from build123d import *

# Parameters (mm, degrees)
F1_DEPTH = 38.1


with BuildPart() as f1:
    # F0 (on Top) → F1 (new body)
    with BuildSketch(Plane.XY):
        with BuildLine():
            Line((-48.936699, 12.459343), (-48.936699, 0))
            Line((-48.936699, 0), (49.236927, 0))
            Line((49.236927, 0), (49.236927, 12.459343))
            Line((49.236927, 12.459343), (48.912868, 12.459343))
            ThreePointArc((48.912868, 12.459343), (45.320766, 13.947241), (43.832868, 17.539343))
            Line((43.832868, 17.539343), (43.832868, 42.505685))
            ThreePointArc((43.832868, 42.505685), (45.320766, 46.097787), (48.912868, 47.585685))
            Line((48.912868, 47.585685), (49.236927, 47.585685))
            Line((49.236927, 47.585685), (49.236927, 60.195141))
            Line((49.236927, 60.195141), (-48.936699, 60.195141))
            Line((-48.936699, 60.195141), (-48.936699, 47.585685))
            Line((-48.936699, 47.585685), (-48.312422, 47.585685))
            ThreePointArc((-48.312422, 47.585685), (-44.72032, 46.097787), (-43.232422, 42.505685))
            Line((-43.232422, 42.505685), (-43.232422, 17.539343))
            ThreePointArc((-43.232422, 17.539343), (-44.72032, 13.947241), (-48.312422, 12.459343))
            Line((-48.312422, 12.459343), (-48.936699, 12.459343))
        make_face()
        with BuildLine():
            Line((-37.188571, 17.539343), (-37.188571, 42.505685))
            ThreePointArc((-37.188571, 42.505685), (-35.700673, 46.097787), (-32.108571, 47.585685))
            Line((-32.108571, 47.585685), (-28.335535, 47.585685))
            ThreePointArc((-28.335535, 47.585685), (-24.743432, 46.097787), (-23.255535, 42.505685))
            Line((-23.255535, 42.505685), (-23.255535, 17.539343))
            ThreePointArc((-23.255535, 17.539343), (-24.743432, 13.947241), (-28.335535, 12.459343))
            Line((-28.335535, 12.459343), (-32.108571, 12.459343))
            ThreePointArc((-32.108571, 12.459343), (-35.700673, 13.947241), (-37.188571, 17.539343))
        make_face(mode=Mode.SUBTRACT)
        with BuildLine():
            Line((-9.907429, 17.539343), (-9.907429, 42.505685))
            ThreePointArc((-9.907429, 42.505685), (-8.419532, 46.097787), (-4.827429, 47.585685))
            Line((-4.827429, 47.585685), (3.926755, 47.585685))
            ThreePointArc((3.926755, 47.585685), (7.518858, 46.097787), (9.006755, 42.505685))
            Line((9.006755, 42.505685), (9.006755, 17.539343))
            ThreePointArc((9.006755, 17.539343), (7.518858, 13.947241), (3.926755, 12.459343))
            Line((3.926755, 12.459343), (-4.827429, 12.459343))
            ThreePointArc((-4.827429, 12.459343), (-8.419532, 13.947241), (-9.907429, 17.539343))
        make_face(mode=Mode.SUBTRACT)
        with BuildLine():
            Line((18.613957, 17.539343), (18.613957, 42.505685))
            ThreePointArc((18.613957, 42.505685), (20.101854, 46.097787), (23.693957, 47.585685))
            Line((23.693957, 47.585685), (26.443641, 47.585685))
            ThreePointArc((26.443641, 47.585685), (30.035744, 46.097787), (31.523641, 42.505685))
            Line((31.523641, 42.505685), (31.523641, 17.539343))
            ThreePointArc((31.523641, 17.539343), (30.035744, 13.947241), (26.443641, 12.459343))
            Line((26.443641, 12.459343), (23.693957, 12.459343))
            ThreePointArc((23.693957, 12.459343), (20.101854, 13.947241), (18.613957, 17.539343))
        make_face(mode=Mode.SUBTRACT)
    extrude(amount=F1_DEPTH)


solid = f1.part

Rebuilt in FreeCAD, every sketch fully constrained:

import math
import FreeCAD as App
import Part
import Sketcher

V = App.Vector
Q = App.Units.Quantity

doc = App.newDocument("Part")
body = doc.addObject("PartDesign::Body", "Body")

sketch1 = doc.addObject("Sketcher::SketchObject", "Sketch")
body.addObject(sketch1)
sketch1.AttachmentSupport = (doc.XY_Plane, [""])
sketch1.MapMode = "FlatFace"
sketch1.addGeometry([
    Part.LineSegment(V(-48.94, 12.46, 0), V(-48.94, 0, 0)),
    Part.LineSegment(V(-48.94, 0, 0), V(49.24, 0, 0)),
    Part.LineSegment(V(49.24, 0, 0), V(49.24, 12.46, 0)),
    Part.LineSegment(V(49.24, 12.46, 0), V(48.91, 12.46, 0)),
    Part.ArcOfCircle(Part.Circle(V(48.91, 17.54, 0), V(0, 0, 1), 5.08), math.radians(-180), math.radians(-90)),
    Part.LineSegment(V(43.83, 17.54, 0), V(43.83, 42.51, 0)),
    Part.ArcOfCircle(Part.Circle(V(48.91, 42.51, 0), V(0, 0, 1), 5.08), math.radians(90), math.radians(180)),
    Part.LineSegment(V(48.91, 47.59, 0), V(49.24, 47.59, 0)),
    Part.LineSegment(V(49.24, 47.59, 0), V(49.24, 60.2, 0)),
    Part.LineSegment(V(49.24, 60.2, 0), V(-48.94, 60.2, 0)),
    Part.LineSegment(V(-48.94, 60.2, 0), V(-48.94, 47.59, 0)),
    Part.LineSegment(V(-48.94, 47.59, 0), V(-48.31, 47.59, 0)),
    Part.ArcOfCircle(Part.Circle(V(-48.31, 42.51, 0), V(0, 0, 1), 5.08), math.radians(0), math.radians(90)),
    Part.LineSegment(V(-43.23, 42.51, 0), V(-43.23, 17.54, 0)),
    Part.ArcOfCircle(Part.Circle(V(-48.31, 17.54, 0), V(0, 0, 1), 5.08), math.radians(-90), math.radians(0)),
    Part.LineSegment(V(-48.31, 12.46, 0), V(-48.94, 12.46, 0)),
    Part.ArcOfCircle(Part.Circle(V(-32.11, 17.54, 0), V(0, 0, 1), 5.08), math.radians(-180), math.radians(-90)),
    Part.LineSegment(V(-37.19, 17.54, 0), V(-37.19, 42.51, 0)),
    Part.ArcOfCircle(Part.Circle(V(-32.11, 42.51, 0), V(0, 0, 1), 5.08), math.radians(90), math.radians(180)),
    Part.LineSegment(V(-32.11, 47.59, 0), V(-28.34, 47.59, 0)),
    Part.ArcOfCircle(Part.Circle(V(-28.34, 42.51, 0), V(0, 0, 1), 5.08), math.radians(0), math.radians(90)),
    Part.LineSegment(V(-23.26, 42.51, 0), V(-23.26, 17.54, 0)),
    Part.ArcOfCircle(Part.Circle(V(-28.34, 17.54, 0), V(0, 0, 1), 5.08), math.radians(-90), math.radians(0)),
    Part.LineSegment(V(-28.34, 12.46, 0), V(-32.11, 12.46, 0)),
    Part.ArcOfCircle(Part.Circle(V(-4.83, 17.54, 0), V(0, 0, 1), 5.08), math.radians(180), math.radians(270)),
    Part.LineSegment(V(-9.91, 17.54, 0), V(-9.91, 42.51, 0)),
    Part.ArcOfCircle(Part.Circle(V(-4.83, 42.51, 0), V(0, 0, 1), 5.08), math.radians(90), math.radians(180)),
    Part.LineSegment(V(-4.83, 47.59, 0), V(3.93, 47.59, 0)),
    Part.ArcOfCircle(Part.Circle(V(3.93, 42.51, 0), V(0, 0, 1), 5.08), math.radians(0), math.radians(90)),
    Part.LineSegment(V(9.01, 42.51, 0), V(9.01, 17.54, 0)),
    Part.ArcOfCircle(Part.Circle(V(3.93, 17.54, 0), V(0, 0, 1), 5.08), math.radians(-90), math.radians(0)),
    Part.LineSegment(V(3.93, 12.46, 0), V(-4.83, 12.46, 0)),
    Part.ArcOfCircle(Part.Circle(V(23.69, 17.54, 0), V(0, 0, 1), 5.08), math.radians(180), math.radians(270)),
    Part.LineSegment(V(18.61, 17.54, 0), V(18.61, 42.51, 0)),
    Part.ArcOfCircle(Part.Circle(V(23.69, 42.51, 0), V(0, 0, 1), 5.08), math.radians(90), math.radians(180)),
    Part.LineSegment(V(23.69, 47.59, 0), V(26.44, 47.59, 0)),
    Part.ArcOfCircle(Part.Circle(V(26.44, 42.51, 0), V(0, 0, 1), 5.08), math.radians(0), math.radians(90)),
    Part.LineSegment(V(31.52, 42.51, 0), V(31.52, 17.54, 0)),
    Part.ArcOfCircle(Part.Circle(V(26.44, 17.54, 0), V(0, 0, 1), 5.08), math.radians(-90), math.radians(0)),
    Part.LineSegment(V(26.44, 12.46, 0), V(23.69, 12.46, 0)),
], False)
sketch1.addConstraint([
    Sketcher.Constraint("Coincident", 0, 2, 1, 1),
    Sketcher.Constraint("Coincident", 1, 2, 2, 1),
    Sketcher.Constraint("Coincident", 2, 2, 3, 1),
    Sketcher.Constraint("Tangent", 3, 2, 4, 2),
    Sketcher.Constraint("Tangent", 4, 1, 5, 1),
    Sketcher.Constraint("Tangent", 5, 2, 6, 2),
    Sketcher.Constraint("Tangent", 6, 1, 7, 1),
    Sketcher.Constraint("Coincident", 7, 2, 8, 1),
    Sketcher.Constraint("Coincident", 8, 2, 9, 1),
    Sketcher.Constraint("Coincident", 9, 2, 10, 1),
    Sketcher.Constraint("Coincident", 10, 2, 11, 1),
    Sketcher.Constraint("Tangent", 11, 2, 12, 2),
    Sketcher.Constraint("Tangent", 12, 1, 13, 1),
    Sketcher.Constraint("Tangent", 13, 2, 14, 2),
    Sketcher.Constraint("Tangent", 14, 1, 15, 1),
    Sketcher.Constraint("Coincident", 15, 2, 0, 1),
    Sketcher.Constraint("Tangent", 16, 1, 17, 1),
    Sketcher.Constraint("Tangent", 17, 2, 18, 2),
    Sketcher.Constraint("Tangent", 18, 1, 19, 1),
    Sketcher.Constraint("Tangent", 19, 2, 20, 2),
    Sketcher.Constraint("Tangent", 20, 1, 21, 1),
    Sketcher.Constraint("Tangent", 21, 2, 22, 2),
    Sketcher.Constraint("Tangent", 22, 1, 23, 1),
    Sketcher.Constraint("Tangent", 23, 2, 16, 2),
    Sketcher.Constraint("Tangent", 24, 1, 25, 1),
    Sketcher.Constraint("Tangent", 25, 2, 26, 2),
    Sketcher.Constraint("Tangent", 26, 1, 27, 1),
    Sketcher.Constraint("Tangent", 27, 2, 28, 2),
    Sketcher.Constraint("Tangent", 28, 1, 29, 1),
    Sketcher.Constraint("Tangent", 29, 2, 30, 2),
    Sketcher.Constraint("Tangent", 30, 1, 31, 1),
    Sketcher.Constraint("Tangent", 31, 2, 24, 2),
    Sketcher.Constraint("Tangent", 32, 1, 33, 1),
    Sketcher.Constraint("Tangent", 33, 2, 34, 2),
    Sketcher.Constraint("Tangent", 34, 1, 35, 1),
    Sketcher.Constraint("Tangent", 35, 2, 36, 2),
    Sketcher.Constraint("Tangent", 36, 1, 37, 1),
    Sketcher.Constraint("Tangent", 37, 2, 38, 2),
    Sketcher.Constraint("Tangent", 38, 1, 39, 1),
    Sketcher.Constraint("Tangent", 39, 2, 32, 2),
    Sketcher.Constraint("Vertical", 0),
    Sketcher.Constraint("Horizontal", 1),
    Sketcher.Constraint("Vertical", 2),
    Sketcher.Constraint("Horizontal", 3),
    Sketcher.Constraint("Vertical", 5),
    Sketcher.Constraint("Horizontal", 7),
    Sketcher.Constraint("Vertical", 8),
    Sketcher.Constraint("Horizontal", 9),
    Sketcher.Constraint("Vertical", 10),
    Sketcher.Constraint("Horizontal", 11),
    Sketcher.Constraint("Vertical", 13),
    Sketcher.Constraint("Horizontal", 15),
    Sketcher.Constraint("Vertical", 17),
    Sketcher.Constraint("Horizontal", 19),
    Sketcher.Constraint("Vertical", 21),
    Sketcher.Constraint("Horizontal", 23),
    Sketcher.Constraint("Vertical", 25),
    Sketcher.Constraint("Horizontal", 27),
    Sketcher.Constraint("Vertical", 29),
    Sketcher.Constraint("Horizontal", 31),
    Sketcher.Constraint("Vertical", 33),
    Sketcher.Constraint("Horizontal", 35),
    Sketcher.Constraint("Vertical", 37),
    Sketcher.Constraint("Horizontal", 39),
    Sketcher.Constraint("Equal", 4, 6),
    Sketcher.Constraint("Equal", 6, 12),
    Sketcher.Constraint("Equal", 12, 14),
    Sketcher.Constraint("Equal", 14, 16),
    Sketcher.Constraint("Equal", 16, 18),
    Sketcher.Constraint("Equal", 18, 20),
    Sketcher.Constraint("Equal", 20, 22),
    Sketcher.Constraint("Equal", 22, 24),
    Sketcher.Constraint("Equal", 24, 26),
    Sketcher.Constraint("Equal", 26, 28),
    Sketcher.Constraint("Equal", 28, 30),
    Sketcher.Constraint("Equal", 30, 32),
    Sketcher.Constraint("Equal", 32, 34),
    Sketcher.Constraint("Equal", 34, 36),
    Sketcher.Constraint("Equal", 36, 38),
    Sketcher.Constraint("PointOnObject", 0, 2, -1),
    Sketcher.Constraint("Horizontal", 6, 3, 12, 3),
    Sketcher.Constraint("Horizontal", 4, 3, 14, 3),
    Sketcher.Constraint("Horizontal", 14, 3, 16, 3),
    Sketcher.Constraint("Horizontal", 12, 3, 18, 3),
    Sketcher.Constraint("Horizontal", 22, 3, 24, 3),
    Sketcher.Constraint("Horizontal", 20, 3, 26, 3),
    Sketcher.Constraint("Horizontal", 30, 3, 32, 3),
    Sketcher.Constraint("Horizontal", 28, 3, 34, 3),
    Sketcher.Constraint("Vertical", 2, 2, 7, 2),
    Sketcher.Constraint("Vertical", 0, 2, 9, 2),
    Sketcher.Constraint("Radius", 4, Q("0.2000001 in")),
    Sketcher.Constraint("DistanceX", 3, 2, 3, 1, 0.324059),
    Sketcher.Constraint("DistanceX", 0, 2, -1, 1, 48.936699),
    Sketcher.Constraint("DistanceX", 30, 3, 32, 3, 19.767202),
    Sketcher.Constraint("DistanceX", 1, 1, 1, 2, 98.173626),
    Sketcher.Constraint("DistanceX", 11, 1, 11, 2, 0.624277),
    Sketcher.Constraint("DistanceX", 19, 1, 19, 2, 3.773036),
    Sketcher.Constraint("DistanceX", 27, 1, 27, 2, 8.754184),
    Sketcher.Constraint("DistanceX", 35, 1, 35, 2, 2.749684),
    Sketcher.Constraint("DistanceY", 0, 2, 0, 1, 12.459343),
    Sketcher.Constraint("DistanceY", 5, 1, 5, 2, 24.966342),
    Sketcher.Constraint("DistanceY", 8, 1, 8, 2, 12.609456),
    Sketcher.Constraint("DistanceX", 16, 3, -1, 1, 32.108569),
    Sketcher.Constraint("DistanceX", 24, 3, -1, 1, 4.827429),
])
pad1 = doc.addObject("PartDesign::Pad", "Pad")
body.addObject(pad1)
pad1.Profile = sketch1
pad1.Length = Q("1.5 in")

doc.recompute()
